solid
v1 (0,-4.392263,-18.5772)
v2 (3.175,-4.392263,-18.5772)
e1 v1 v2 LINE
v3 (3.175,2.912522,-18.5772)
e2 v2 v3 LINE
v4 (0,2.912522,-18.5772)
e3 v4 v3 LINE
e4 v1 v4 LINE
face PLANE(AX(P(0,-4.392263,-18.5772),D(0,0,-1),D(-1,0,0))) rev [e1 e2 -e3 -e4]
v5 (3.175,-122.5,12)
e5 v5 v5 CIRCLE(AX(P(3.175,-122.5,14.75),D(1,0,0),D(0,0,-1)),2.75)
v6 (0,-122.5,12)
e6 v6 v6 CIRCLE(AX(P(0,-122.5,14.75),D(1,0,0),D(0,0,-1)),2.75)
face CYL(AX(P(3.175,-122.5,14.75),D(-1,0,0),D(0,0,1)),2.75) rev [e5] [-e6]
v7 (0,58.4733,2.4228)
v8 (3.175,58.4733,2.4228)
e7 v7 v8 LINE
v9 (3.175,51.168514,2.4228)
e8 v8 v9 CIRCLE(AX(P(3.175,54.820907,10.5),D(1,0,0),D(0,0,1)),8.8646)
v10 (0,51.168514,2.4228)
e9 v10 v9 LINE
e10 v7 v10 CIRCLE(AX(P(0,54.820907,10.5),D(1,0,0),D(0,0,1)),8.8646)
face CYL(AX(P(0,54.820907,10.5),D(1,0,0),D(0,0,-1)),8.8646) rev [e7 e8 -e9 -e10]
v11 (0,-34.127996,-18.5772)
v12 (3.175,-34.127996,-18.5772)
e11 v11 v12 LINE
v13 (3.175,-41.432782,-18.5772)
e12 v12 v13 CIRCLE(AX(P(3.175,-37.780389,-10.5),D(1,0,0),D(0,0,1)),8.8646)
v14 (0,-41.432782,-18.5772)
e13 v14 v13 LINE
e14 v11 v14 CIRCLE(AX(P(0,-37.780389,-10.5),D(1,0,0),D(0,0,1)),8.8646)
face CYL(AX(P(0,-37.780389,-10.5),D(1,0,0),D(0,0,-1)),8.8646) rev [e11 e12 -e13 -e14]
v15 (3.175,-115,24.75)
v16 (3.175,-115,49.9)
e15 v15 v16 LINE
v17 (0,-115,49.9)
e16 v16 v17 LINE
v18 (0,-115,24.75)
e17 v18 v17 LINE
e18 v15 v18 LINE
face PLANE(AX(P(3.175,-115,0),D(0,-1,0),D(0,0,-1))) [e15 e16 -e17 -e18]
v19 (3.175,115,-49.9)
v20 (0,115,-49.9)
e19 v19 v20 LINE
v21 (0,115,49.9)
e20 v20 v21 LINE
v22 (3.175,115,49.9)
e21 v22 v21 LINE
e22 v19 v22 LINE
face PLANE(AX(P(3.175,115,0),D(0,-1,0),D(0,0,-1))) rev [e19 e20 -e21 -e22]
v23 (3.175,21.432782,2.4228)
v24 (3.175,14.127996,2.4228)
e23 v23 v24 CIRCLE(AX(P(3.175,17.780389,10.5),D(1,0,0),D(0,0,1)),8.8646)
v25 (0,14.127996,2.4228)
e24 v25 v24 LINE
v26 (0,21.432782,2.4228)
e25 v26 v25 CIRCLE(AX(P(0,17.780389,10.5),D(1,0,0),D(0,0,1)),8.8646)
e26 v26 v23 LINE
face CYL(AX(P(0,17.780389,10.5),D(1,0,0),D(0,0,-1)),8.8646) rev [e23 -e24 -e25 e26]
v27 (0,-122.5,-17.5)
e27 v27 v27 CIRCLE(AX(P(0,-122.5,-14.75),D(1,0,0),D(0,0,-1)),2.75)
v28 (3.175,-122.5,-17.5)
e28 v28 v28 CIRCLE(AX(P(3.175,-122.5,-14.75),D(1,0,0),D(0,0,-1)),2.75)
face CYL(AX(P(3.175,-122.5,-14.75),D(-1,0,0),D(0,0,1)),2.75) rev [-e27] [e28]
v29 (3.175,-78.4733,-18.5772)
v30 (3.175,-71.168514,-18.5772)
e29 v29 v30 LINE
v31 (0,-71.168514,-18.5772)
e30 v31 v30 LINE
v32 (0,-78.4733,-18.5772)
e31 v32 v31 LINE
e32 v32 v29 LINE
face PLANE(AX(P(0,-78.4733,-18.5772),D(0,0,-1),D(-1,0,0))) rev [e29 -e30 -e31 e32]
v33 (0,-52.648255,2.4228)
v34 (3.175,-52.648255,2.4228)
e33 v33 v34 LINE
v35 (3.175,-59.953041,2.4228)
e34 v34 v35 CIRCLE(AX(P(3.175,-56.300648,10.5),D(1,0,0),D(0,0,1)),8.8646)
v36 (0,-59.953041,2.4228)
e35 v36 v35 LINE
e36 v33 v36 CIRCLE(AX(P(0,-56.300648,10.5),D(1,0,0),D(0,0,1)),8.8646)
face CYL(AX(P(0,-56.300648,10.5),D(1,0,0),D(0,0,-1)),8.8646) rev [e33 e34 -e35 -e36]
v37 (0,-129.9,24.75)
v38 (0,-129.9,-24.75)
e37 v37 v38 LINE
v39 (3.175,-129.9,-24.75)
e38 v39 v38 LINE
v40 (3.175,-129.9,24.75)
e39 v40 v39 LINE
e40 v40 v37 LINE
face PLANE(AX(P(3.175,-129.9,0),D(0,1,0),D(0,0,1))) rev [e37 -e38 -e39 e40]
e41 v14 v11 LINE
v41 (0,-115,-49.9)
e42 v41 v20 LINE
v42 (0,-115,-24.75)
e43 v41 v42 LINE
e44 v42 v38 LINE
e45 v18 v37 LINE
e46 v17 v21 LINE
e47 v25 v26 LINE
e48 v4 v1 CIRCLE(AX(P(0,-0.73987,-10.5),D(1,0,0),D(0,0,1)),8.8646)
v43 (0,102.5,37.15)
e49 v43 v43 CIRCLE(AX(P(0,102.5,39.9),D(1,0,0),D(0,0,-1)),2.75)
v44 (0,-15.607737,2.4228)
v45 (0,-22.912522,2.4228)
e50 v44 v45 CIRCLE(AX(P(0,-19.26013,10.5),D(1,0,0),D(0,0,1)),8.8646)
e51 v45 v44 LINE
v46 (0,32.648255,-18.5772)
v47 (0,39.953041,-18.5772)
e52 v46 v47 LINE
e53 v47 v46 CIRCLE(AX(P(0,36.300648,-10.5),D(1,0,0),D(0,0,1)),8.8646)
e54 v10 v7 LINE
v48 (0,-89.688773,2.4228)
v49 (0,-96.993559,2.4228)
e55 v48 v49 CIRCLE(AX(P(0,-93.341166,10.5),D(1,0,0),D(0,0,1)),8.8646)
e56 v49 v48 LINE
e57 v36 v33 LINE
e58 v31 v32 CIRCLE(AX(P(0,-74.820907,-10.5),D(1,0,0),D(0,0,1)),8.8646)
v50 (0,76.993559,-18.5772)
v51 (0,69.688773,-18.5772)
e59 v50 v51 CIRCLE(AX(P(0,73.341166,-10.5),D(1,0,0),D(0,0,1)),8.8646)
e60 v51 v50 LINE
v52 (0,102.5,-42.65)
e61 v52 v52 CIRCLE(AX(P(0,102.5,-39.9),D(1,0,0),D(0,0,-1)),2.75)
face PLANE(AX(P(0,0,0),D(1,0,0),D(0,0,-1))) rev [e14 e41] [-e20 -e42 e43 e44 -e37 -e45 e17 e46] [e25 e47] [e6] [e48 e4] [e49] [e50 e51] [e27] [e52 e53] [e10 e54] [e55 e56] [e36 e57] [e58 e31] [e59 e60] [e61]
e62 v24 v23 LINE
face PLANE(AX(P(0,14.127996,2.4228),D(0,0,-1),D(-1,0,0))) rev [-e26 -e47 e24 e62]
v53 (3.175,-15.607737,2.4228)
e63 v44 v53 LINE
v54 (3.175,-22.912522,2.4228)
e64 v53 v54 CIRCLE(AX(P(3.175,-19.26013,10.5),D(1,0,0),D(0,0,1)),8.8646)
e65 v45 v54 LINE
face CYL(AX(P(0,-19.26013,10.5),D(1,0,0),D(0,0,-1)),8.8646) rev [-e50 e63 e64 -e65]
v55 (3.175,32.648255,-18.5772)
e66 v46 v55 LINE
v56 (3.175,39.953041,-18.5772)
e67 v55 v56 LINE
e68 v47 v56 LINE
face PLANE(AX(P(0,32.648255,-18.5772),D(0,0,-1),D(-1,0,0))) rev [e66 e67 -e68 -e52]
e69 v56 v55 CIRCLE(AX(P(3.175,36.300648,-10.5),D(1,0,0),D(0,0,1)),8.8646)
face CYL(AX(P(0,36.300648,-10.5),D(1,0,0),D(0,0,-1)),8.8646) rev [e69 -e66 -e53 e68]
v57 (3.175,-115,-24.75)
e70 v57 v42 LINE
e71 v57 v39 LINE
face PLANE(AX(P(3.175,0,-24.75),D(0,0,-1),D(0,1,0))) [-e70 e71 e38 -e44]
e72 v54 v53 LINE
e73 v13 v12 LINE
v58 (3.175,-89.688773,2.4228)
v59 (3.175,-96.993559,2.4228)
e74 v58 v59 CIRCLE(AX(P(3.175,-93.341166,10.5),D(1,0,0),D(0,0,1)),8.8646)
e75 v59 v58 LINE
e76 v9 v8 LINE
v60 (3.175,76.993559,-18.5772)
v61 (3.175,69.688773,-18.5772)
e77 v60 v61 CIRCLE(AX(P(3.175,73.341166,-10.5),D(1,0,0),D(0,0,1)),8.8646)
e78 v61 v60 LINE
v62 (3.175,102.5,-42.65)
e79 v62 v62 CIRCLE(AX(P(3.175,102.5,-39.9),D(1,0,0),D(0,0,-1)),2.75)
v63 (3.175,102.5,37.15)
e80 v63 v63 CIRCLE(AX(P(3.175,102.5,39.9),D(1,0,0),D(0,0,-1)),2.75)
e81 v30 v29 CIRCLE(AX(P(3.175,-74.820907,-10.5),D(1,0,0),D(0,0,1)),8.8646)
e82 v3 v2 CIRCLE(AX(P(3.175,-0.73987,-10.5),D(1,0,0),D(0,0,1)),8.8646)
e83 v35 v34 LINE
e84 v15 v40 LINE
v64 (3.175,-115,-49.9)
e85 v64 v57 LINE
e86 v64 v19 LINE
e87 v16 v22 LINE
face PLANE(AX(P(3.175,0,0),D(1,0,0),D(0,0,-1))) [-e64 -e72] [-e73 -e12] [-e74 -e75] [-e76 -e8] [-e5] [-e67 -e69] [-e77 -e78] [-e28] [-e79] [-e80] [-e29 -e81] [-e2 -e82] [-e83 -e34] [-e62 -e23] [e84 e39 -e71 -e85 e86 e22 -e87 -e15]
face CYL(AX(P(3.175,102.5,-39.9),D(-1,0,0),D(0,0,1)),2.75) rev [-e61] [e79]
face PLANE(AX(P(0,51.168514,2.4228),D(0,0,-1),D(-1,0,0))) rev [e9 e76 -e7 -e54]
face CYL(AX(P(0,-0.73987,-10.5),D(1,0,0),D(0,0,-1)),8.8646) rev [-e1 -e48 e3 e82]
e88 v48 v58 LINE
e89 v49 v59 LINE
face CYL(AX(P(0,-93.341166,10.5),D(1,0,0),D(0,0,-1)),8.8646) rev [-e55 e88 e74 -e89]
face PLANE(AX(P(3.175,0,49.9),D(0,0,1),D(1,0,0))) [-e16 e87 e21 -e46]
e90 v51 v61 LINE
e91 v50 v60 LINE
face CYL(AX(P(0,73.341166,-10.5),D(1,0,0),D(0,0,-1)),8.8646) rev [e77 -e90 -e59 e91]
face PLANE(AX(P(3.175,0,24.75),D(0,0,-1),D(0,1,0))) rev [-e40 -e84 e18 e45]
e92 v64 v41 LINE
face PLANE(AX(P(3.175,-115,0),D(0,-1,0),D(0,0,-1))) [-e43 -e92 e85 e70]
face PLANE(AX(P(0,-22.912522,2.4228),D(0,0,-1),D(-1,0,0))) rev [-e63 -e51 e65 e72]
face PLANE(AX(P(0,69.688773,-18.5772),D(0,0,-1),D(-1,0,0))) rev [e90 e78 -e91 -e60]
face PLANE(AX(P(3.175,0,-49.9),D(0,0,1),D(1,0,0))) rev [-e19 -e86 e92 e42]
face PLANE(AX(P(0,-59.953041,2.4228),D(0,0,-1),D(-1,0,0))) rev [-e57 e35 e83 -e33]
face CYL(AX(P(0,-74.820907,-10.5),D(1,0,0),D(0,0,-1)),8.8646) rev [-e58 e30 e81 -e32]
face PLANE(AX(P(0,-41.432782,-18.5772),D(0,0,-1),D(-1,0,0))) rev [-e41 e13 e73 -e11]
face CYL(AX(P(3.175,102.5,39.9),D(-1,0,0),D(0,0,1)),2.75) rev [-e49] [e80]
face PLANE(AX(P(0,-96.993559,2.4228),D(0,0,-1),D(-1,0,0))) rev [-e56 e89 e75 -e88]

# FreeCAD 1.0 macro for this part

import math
import FreeCAD as App
import Part
import Sketcher
from FreeCAD import Vector
Q = App.Units.Quantity

doc = App.newDocument("Part")
body = doc.addObject("PartDesign::Body", "Body")

sketch1 = body.newObject("Sketcher::SketchObject", "Sketch")
sketch1.AttachmentSupport = (doc.getObject("YZ_Plane"), [""])
sketch1.MapMode = "FlatFace"
sketch1.addGeometry(Part.LineSegment(Vector(-129.9, 24.8, 0), Vector(-129.9, -24.8, 0)), False)
sketch1.addGeometry(Part.LineSegment(Vector(-129.9, -24.8, 0), Vector(-115, -24.8, 0)), False)
sketch1.addGeometry(Part.LineSegment(Vector(-115, -24.8, 0), Vector(-115, -49.9, 0)), False)
sketch1.addGeometry(Part.LineSegment(Vector(-115, -49.9, 0), Vector(115, -49.9, 0)), False)
sketch1.addGeometry(Part.LineSegment(Vector(115, -49.9, 0), Vector(115, 49.9, 0)), False)
sketch1.addGeometry(Part.LineSegment(Vector(115, 49.9, 0), Vector(-115, 49.9, 0)), False)
sketch1.addGeometry(Part.LineSegment(Vector(-115, 49.9, 0), Vector(-115, 24.8, 0)), False)
sketch1.addGeometry(Part.LineSegment(Vector(-115, 24.8, 0), Vector(-129.9, 24.8, 0)), False)
sketch1.addGeometry(Part.Circle(Vector(-122.5, -14.8, 0), Vector(0, 0, 1), 2.8), False)
sketch1.addGeometry(Part.Circle(Vector(-122.5, 14.8, 0), Vector(0, 0, 1), 2.8), False)
sketch1.addGeometry(Part.Circle(Vector(102.5, 39.9, 0), Vector(0, 0, 1), 2.8), False)
sketch1.addGeometry(Part.Circle(Vector(102.5, -39.9, 0), Vector(0, 0, 1), 2.8), False)
sketch1.addConstraint(Sketcher.Constraint("Coincident", 0, 2, 1, 1))
sketch1.addConstraint(Sketcher.Constraint("Coincident", 1, 2, 2, 1))
sketch1.addConstraint(Sketcher.Constraint("Coincident", 2, 2, 3, 1))
sketch1.addConstraint(Sketcher.Constraint("Coincident", 3, 2, 4, 1))
sketch1.addConstraint(Sketcher.Constraint("Coincident", 4, 2, 5, 1))
sketch1.addConstraint(Sketcher.Constraint("Coincident", 5, 2, 6, 1))
sketch1.addConstraint(Sketcher.Constraint("Coincident", 6, 2, 7, 1))
sketch1.addConstraint(Sketcher.Constraint("Coincident", 7, 2, 0, 1))
sketch1.addConstraint(Sketcher.Constraint("Vertical", 0))
sketch1.addConstraint(Sketcher.Constraint("Horizontal", 1))
sketch1.addConstraint(Sketcher.Constraint("Vertical", 2))
sketch1.addConstraint(Sketcher.Constraint("Horizontal", 3))
sketch1.addConstraint(Sketcher.Constraint("Vertical", 4))
sketch1.addConstraint(Sketcher.Constraint("Horizontal", 5))
sketch1.addConstraint(Sketcher.Constraint("Vertical", 6))
sketch1.addConstraint(Sketcher.Constraint("Horizontal", 7))
sketch1.addConstraint(Sketcher.Constraint("Equal", 8, 9))
sketch1.addConstraint(Sketcher.Constraint("Equal", 9, 10))
sketch1.addConstraint(Sketcher.Constraint("Equal", 10, 11))
sketch1.addConstraint(Sketcher.Constraint("Symmetric", 2, 2, 4, 2, -1, 1))
sketch1.addConstraint(Sketcher.Constraint("Symmetric", 8, 3, 9, 3, -1))
sketch1.addConstraint(Sketcher.Constraint("Symmetric", 10, 3, 11, 3, -1))
sketch1.addConstraint(Sketcher.Constraint("Symmetric", 1, 2, 6, 2, -1))
sketch1.addConstraint(Sketcher.Constraint("Diameter", 8, Q("5.5 mm")))
sketch1.addConstraint(Sketcher.Constraint("DistanceX", 3, 1, 3, 2, Q("230 mm")))
sketch1.addConstraint(Sketcher.Constraint("DistanceX", 1, 1, 1, 2, Q("14.9 mm")))
sketch1.addConstraint(Sketcher.Constraint("DistanceY", 0, 2, 0, 1, Q("49.5 mm")))
sketch1.addConstraint(Sketcher.Constraint("DistanceY", 4, 1, 4, 2, Q("99.8 mm")))
sketch1.addConstraint(Sketcher.Constraint("DistanceX", 9, 3, 10, 3, Q("225 mm")))
sketch1.addConstraint(Sketcher.Constraint("DistanceY", 0, 2, 8, 3, Q("10 mm")))
sketch1.addConstraint(Sketcher.Constraint("DistanceY", 2, 2, 11, 3, Q("10 mm")))
sketch1.addConstraint(Sketcher.Constraint("DistanceX", 8, 3, -1, 1, Q("122.5 mm")))
pad1 = body.newObject("PartDesign::Pad", "Pad")
pad1.Profile = sketch1
pad1.Length = 3.175

sketch2 = body.newObject("Sketcher::SketchObject", "Sketch001")
sketch2.AttachmentSupport = (doc.getObject("YZ_Plane"), [""])
sketch2.MapMode = "FlatFace"
sketch2.AttachmentOffset = App.Placement(Vector(0, 0, 3.175), App.Rotation())
sketch2.addGeometry(Part.LineSegment(Vector(51, 2, 0), Vector(58, 2, 0)), False)
sketch2.addGeometry(Part.ArcOfCircle(Part.Circle(Vector(55, 10, 0), Vector(0, 0, 1), 9), math.radians(-66), math.radians(246)), False)
sketch2.addGeometry(Part.LineSegment(Vector(70, -19, 0), Vector(77, -19, 0)), False)
sketch2.addGeometry(Part.ArcOfCircle(Part.Circle(Vector(73, -10, 0), Vector(0, 0, 1), 9), math.radians(-66), math.radians(246)), False)
sketch2.addGeometry(Part.LineSegment(Vector(14, 2, 0), Vector(21, 2, 0)), False)
sketch2.addGeometry(Part.ArcOfCircle(Part.Circle(Vector(18, 10, 0), Vector(0, 0, 1), 9), math.radians(-66), math.radians(246)), False)
sketch2.addGeometry(Part.LineSegment(Vector(33, -19, 0), Vector(40, -19, 0)), False)
sketch2.addGeometry(Part.ArcOfCircle(Part.Circle(Vector(36, -10, 0), Vector(0, 0, 1), 9), math.radians(-66), math.radians(246)), False)
sketch2.addGeometry(Part.LineSegment(Vector(-23, 2, 0), Vector(-16, 2, 0)), False)
sketch2.addGeometry(Part.ArcOfCircle(Part.Circle(Vector(-19, 10, 0), Vector(0, 0, 1), 9), math.radians(-66), math.radians(246)), False)
sketch2.addGeometry(Part.LineSegment(Vector(-4, -19, 0), Vector(3, -19, 0)), False)
sketch2.addGeometry(Part.ArcOfCircle(Part.Circle(Vector(-1, -10, 0), Vector(0, 0, 1), 9), math.radians(-66), math.radians(246)), False)
sketch2.addGeometry(Part.LineSegment(Vector(-60, 2, 0), Vector(-53, 2, 0)), False)
sketch2.addGeometry(Part.ArcOfCircle(Part.Circle(Vector(-56, 10, 0), Vector(0, 0, 1), 9), math.radians(-66), math.radians(246)), False)
sketch2.addGeometry(Part.LineSegment(Vector(-41, -19, 0), Vector(-34, -19, 0)), False)
sketch2.addGeometry(Part.ArcOfCircle(Part.Circle(Vector(-38, -10, 0), Vector(0, 0, 1), 9), math.radians(-66), math.radians(246)), False)
sketch2.addGeometry(Part.LineSegment(Vector(-97, 2, 0), Vector(-90, 2, 0)), False)
sketch2.addGeometry(Part.ArcOfCircle(Part.Circle(Vector(-93, 10, 0), Vector(0, 0, 1), 9), math.radians(-66), math.radians(246)), False)
sketch2.addGeometry(Part.LineSegment(Vector(-78, -19, 0), Vector(-71, -19, 0)), False)
sketch2.addGeometry(Part.ArcOfCircle(Part.Circle(Vector(-75, -10, 0), Vector(0, 0, 1), 9), math.radians(-66), math.radians(246)), False)
sketch2.addConstraint(Sketcher.Constraint("Coincident", 0, 1, 1, 2))
sketch2.addConstraint(Sketcher.Constraint("Coincident", 1, 1, 0, 2))
sketch2.addConstraint(Sketcher.Constraint("Coincident", 2, 1, 3, 2))
sketch2.addConstraint(Sketcher.Constraint("Coincident", 3, 1, 2, 2))
sketch2.addConstraint(Sketcher.Constraint("Coincident", 4, 1, 5, 2))
sketch2.addConstraint(Sketcher.Constraint("Coincident", 5, 1, 4, 2))
sketch2.addConstraint(Sketcher.Constraint("Coincident", 6, 1, 7, 2))
sketch2.addConstraint(Sketcher.Constraint("Coincident", 7, 1, 6, 2))
sketch2.addConstraint(Sketcher.Constraint("Coincident", 8, 1, 9, 2))
sketch2.addConstraint(Sketcher.Constraint("Coincident", 9, 1, 8, 2))
sketch2.addConstraint(Sketcher.Constraint("Coincident", 10, 1, 11, 2))
sketch2.addConstraint(Sketcher.Constraint("Coincident", 11, 1, 10, 2))
sketch2.addConstraint(Sketcher.Constraint("Coincident", 12, 1, 13, 2))
sketch2.addConstraint(Sketcher.Constraint("Coincident", 13, 1, 12, 2))
sketch2.addConstraint(Sketcher.Constraint("Coincident", 14, 1, 15, 2))
sketch2.addConstraint(Sketcher.Constraint("Coincident", 15, 1, 14, 2))
sketch2.addConstraint(Sketcher.Constraint("Coincident", 16, 1, 17, 2))
sketch2.addConstraint(Sketcher.Constraint("Coincident", 17, 1, 16, 2))
sketch2.addConstraint(Sketcher.Constraint("Coincident", 18, 1, 19, 2))
sketch2.addConstraint(Sketcher.Constraint("Coincident", 19, 1, 18, 2))
sketch2.addConstraint(Sketcher.Constraint("Horizontal", 0))
sketch2.addConstraint(Sketcher.Constraint("Horizontal", 2))
sketch2.addConstraint(Sketcher.Constraint("Horizontal", 4))
sketch2.addConstraint(Sketcher.Constraint("Horizontal", 6))
sketch2.addConstraint(Sketcher.Constraint("Horizontal", 8))
sketch2.addConstraint(Sketcher.Constraint("Horizontal", 10))
sketch2.addConstraint(Sketcher.Constraint("Horizontal", 12))
sketch2.addConstraint(Sketcher.Constraint("Horizontal", 14))
sketch2.addConstraint(Sketcher.Constraint("Horizontal", 16))
sketch2.addConstraint(Sketcher.Constraint("Horizontal", 18))
sketch2.addConstraint(Sketcher.Constraint("Equal", 1, 3))
sketch2.addConstraint(Sketcher.Constraint("Equal", 3, 5))
sketch2.addConstraint(Sketcher.Constraint("Equal", 5, 7))
sketch2.addConstraint(Sketcher.Constraint("Equal", 7, 9))
sketch2.addConstraint(Sketcher.Constraint("Equal", 9, 11))
sketch2.addConstraint(Sketcher.Constraint("Equal", 11, 13))
sketch2.addConstraint(Sketcher.Constraint("Equal", 13, 15))
sketch2.addConstraint(Sketcher.Constraint("Equal", 15, 17))
sketch2.addConstraint(Sketcher.Constraint("Equal", 17, 19))
sketch2.addConstraint(Sketcher.Constraint("Horizontal", 1, 3, 5, 3))
sketch2.addConstraint(Sketcher.Constraint("Horizontal", 3, 3, 7, 3))
sketch2.addConstraint(Sketcher.Constraint("Horizontal", 5, 3, 9, 3))
sketch2.addConstraint(Sketcher.Constraint("Horizontal", 7, 3, 11, 3))
sketch2.addConstraint(Sketcher.Constraint("Horizontal", 9, 3, 13, 3))
sketch2.addConstraint(Sketcher.Constraint("Horizontal", 11, 3, 15, 3))
sketch2.addConstraint(Sketcher.Constraint("Horizontal", 13, 3, 17, 3))
sketch2.addConstraint(Sketcher.Constraint("Horizontal", 15, 3, 19, 3))
sketch2.addConstraint(Sketcher.Constraint("Horizontal", 1, 1, 4, 1))
sketch2.addConstraint(Sketcher.Constraint("Horizontal", 3, 1, 6, 1))
sketch2.addConstraint(Sketcher.Constraint("Horizontal", 5, 1, 8, 1))
sketch2.addConstraint(Sketcher.Constraint("Horizontal", 7, 1, 10, 1))
sketch2.addConstraint(Sketcher.Constraint("Horizontal", 9, 1, 12, 1))
sketch2.addConstraint(Sketcher.Constraint("Horizontal", 11, 1, 14, 1))
sketch2.addConstraint(Sketcher.Constraint("Horizontal", 13, 1, 16, 1))
sketch2.addConstraint(Sketcher.Constraint("Horizontal", 15, 1, 18, 1))
sketch2.addConstraint(Sketcher.Constraint("Equal", 0, 2))
sketch2.addConstraint(Sketcher.Constraint("DistanceY", 3, 3, 1, 3, Q("21 mm")))
sketch2.addConstraint(Sketcher.Constraint("DistanceY", -1, 1, 1, 3, Q("10.5 mm")))
sketch2.addConstraint(Sketcher.Constraint("Radius", 1, Q("8.8646 mm")))
sketch2.addConstraint(Sketcher.Constraint("DistanceY", -1, 1, 0, 1, Q("2.4228 mm")))
sketch2.addConstraint(Sketcher.Constraint("DistanceX", -1, 1, 1, 1, Q("58.4733 mm")))
sketch2.addConstraint(Sketcher.Constraint("DistanceX", 18, 1, -1, 1, Q("78.4733 mm")))
sketch2.addConstraint(Sketcher.Constraint("DistanceX", -1, 1, 5, 3, Q("17.780389 mm")))
sketch2.addConstraint(Sketcher.Constraint("DistanceX", 9, 3, -1, 1, Q("19.26013 mm")))
sketch2.addConstraint(Sketcher.Constraint("DistanceX", 11, 3, -1, 1, Q("0.73987 mm")))
sketch2.addConstraint(Sketcher.Constraint("DistanceX", 15, 3, -1, 1, Q("37.780389 mm")))
sketch2.addConstraint(Sketcher.Constraint("DistanceX", -1, 1, 3, 1, Q("76.993559 mm")))
sketch2.addConstraint(Sketcher.Constraint("DistanceX", -1, 1, 7, 1, Q("39.953041 mm")))
sketch2.addConstraint(Sketcher.Constraint("DistanceX", 12, 1, -1, 1, Q("59.953041 mm")))
sketch2.addConstraint(Sketcher.Constraint("DistanceX", 16, 1, -1, 1, Q("96.993559 mm")))
pocket1 = body.newObject("PartDesign::Pocket", "Pocket")
pocket1.Profile = sketch2
pocket1.Type = "ThroughAll"

doc.recompute()
